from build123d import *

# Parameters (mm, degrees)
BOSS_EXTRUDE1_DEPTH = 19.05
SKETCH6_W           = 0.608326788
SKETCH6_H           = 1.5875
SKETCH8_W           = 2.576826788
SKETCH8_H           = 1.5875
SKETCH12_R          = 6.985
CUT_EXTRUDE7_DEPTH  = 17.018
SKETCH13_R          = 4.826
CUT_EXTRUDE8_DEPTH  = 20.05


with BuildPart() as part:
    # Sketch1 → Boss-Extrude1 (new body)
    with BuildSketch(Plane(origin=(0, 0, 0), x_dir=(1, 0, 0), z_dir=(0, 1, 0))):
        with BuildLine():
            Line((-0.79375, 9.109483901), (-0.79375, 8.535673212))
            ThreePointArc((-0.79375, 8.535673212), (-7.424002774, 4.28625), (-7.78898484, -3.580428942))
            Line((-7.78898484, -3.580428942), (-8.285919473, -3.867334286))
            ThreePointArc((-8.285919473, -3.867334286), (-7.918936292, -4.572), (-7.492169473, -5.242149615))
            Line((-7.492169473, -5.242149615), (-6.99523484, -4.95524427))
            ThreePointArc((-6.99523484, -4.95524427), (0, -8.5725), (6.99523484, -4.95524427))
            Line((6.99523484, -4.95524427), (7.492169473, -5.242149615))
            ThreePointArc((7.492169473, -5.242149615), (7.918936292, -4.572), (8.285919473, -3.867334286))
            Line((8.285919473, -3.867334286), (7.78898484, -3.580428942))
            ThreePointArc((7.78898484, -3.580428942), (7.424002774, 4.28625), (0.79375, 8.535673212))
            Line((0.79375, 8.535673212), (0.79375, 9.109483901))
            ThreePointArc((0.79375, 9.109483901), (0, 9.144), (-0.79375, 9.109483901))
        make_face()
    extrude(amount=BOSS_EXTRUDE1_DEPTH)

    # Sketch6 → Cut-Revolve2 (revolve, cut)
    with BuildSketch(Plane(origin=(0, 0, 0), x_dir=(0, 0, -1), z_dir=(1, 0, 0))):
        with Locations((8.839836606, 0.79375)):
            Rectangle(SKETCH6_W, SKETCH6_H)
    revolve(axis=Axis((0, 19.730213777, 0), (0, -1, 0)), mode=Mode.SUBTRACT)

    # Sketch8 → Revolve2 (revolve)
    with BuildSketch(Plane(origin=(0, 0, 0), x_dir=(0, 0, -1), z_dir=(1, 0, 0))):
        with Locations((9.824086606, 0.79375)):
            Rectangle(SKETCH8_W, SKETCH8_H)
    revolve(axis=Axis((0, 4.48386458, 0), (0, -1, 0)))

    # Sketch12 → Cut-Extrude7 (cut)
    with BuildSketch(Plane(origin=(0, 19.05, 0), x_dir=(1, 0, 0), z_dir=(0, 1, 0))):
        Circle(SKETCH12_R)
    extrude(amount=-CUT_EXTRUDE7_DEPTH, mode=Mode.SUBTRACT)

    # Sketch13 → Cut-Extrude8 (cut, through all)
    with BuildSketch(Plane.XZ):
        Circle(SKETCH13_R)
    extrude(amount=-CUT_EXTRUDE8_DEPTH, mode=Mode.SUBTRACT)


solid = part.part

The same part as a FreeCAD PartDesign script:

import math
import FreeCAD as App
import Part
import Sketcher
Q = App.Units.Quantity


def add_polygon(sketch, points):
    """Adds a closed chain of lines whose ends are joined by coincident constraints."""
    first, n = sketch.GeometryCount, len(points)
    for a, b in zip(points, points[1:] + points[:1]):
        sketch.addGeometry(Part.LineSegment(App.Vector(*a, 0), App.Vector(*b, 0)), False)
    for i in range(n):
        sketch.addConstraint(Sketcher.Constraint("Coincident", first + i, 2, first + (i + 1) % n, 1))

doc = App.newDocument("Part")
body = doc.addObject("PartDesign::Body", "Body")

# Sketch on XZ plane
sketch1 = body.newObject("Sketcher::SketchObject", "Sketch")
sketch1.AttachmentSupport = (doc.getObject("XZ_Plane"), [""])
sketch1.MapMode = "FlatFace"
sketch1.addGeometry(Part.LineSegment(App.Vector(-0.79375, -9.109484, 0), App.Vector(-0.79375, -8.535673, 0)), False)
sketch1.addGeometry(Part.ArcOfCircle(Part.Circle(App.Vector(0, 0, 0), App.Vector(0, 0, 1), 8.5725), math.radians(155.312775), math.radians(264.687225)), False)
sketch1.addGeometry(Part.LineSegment(App.Vector(-7.788985, 3.580429, 0), App.Vector(-8.285919, 3.867334, 0)), False)
sketch1.addGeometry(Part.ArcOfCircle(Part.Circle(App.Vector(0, 0, 0), App.Vector(0, 0, 1), 9.144), math.radians(145.020141), math.radians(154.979859)), False)
sketch1.addGeometry(Part.LineSegment(App.Vector(-7.492169, 5.24215, 0), App.Vector(-6.995235, 4.955244, 0)), False)
sketch1.addGeometry(Part.ArcOfCircle(Part.Circle(App.Vector(0, 0, 0), App.Vector(0, 0, 1), 8.5725), math.radians(35.312775), math.radians(144.687225)), False)
sketch1.addGeometry(Part.LineSegment(App.Vector(6.995235, 4.955244, 0), App.Vector(7.492169, 5.24215, 0)), False)
sketch1.addGeometry(Part.ArcOfCircle(Part.Circle(App.Vector(0, 0, 0), App.Vector(0, 0, 1), 9.144), math.radians(25.020141), math.radians(34.979859)), False)
sketch1.addGeometry(Part.LineSegment(App.Vector(8.285919, 3.867334, 0), App.Vector(7.788985, 3.580429, 0)), False)
sketch1.addGeometry(Part.ArcOfCircle(Part.Circle(App.Vector(0, 0, 0), App.Vector(0, 0, 1), 8.5725), math.radians(-84.687225), math.radians(24.687225)), False)
sketch1.addGeometry(Part.LineSegment(App.Vector(0.79375, -8.535673, 0), App.Vector(0.79375, -9.109484, 0)), False)
sketch1.addGeometry(Part.ArcOfCircle(Part.Circle(App.Vector(0, 0, 0), App.Vector(0, 0, 1), 9.144), math.radians(-94.979859), math.radians(-85.020141)), False)
sketch1.addConstraint(Sketcher.Constraint("Coincident", 0, 2, 1, 2))
sketch1.addConstraint(Sketcher.Constraint("Coincident", 1, 1, 2, 1))
sketch1.addConstraint(Sketcher.Constraint("Coincident", 2, 2, 3, 2))
sketch1.addConstraint(Sketcher.Constraint("Coincident", 3, 1, 4, 1))
sketch1.addConstraint(Sketcher.Constraint("Coincident", 4, 2, 5, 2))
sketch1.addConstraint(Sketcher.Constraint("Coincident", 5, 1, 6, 1))
sketch1.addConstraint(Sketcher.Constraint("Coincident", 6, 2, 7, 2))
sketch1.addConstraint(Sketcher.Constraint("Coincident", 7, 1, 8, 1))
sketch1.addConstraint(Sketcher.Constraint("Coincident", 8, 2, 9, 2))
sketch1.addConstraint(Sketcher.Constraint("Coincident", 9, 1, 10, 1))
sketch1.addConstraint(Sketcher.Constraint("Coincident", 10, 2, 11, 2))
sketch1.addConstraint(Sketcher.Constraint("Coincident", 11, 1, 0, 1))
sketch1.addConstraint(Sketcher.Constraint("Vertical", 0))
sketch1.addConstraint(Sketcher.Constraint("Vertical", 10))
sketch1.addConstraint(Sketcher.Constraint("Coincident", 1, 3, -1, 1))
sketch1.addConstraint(Sketcher.Constraint("Coincident", 3, 3, -1, 1))
sketch1.addConstraint(Sketcher.Constraint("Coincident", 5, 3, -1, 1))
sketch1.addConstraint(Sketcher.Constraint("Coincident", 7, 3, -1, 1))
sketch1.addConstraint(Sketcher.Constraint("Coincident", 9, 3, -1, 1))
sketch1.addConstraint(Sketcher.Constraint("Coincident", 11, 3, -1, 1))
sketch1.addConstraint(Sketcher.Constraint("Equal", 1, 5))
sketch1.addConstraint(Sketcher.Constraint("Equal", 3, 7))
sketch1.addConstraint(Sketcher.Constraint("Equal", 5, 9))
sketch1.addConstraint(Sketcher.Constraint("Equal", 7, 11))
sketch1.addConstraint(Sketcher.Constraint("Parallel", 2, 4))
sketch1.addConstraint(Sketcher.Constraint("Parallel", 6, 8))
sketch1.addConstraint(Sketcher.Constraint("Horizontal", 4, 2, 5, 1))
sketch1.addConstraint(Sketcher.Constraint("Horizontal", 3, 1, 6, 2))
sketch1.addConstraint(Sketcher.Constraint("Horizontal", 2, 2, 7, 1))
sketch1.addConstraint(Sketcher.Constraint("Horizontal", 0, 2, 9, 1))
sketch1.addConstraint(Sketcher.Constraint("Equal", 2, 4))
sketch1.addConstraint(Sketcher.Constraint("Radius", 3, Q("0.36 in")))
sketch1.addConstraint(Sketcher.Constraint("Angle", 2, Q("150 deg")))
sketch1.addConstraint(Sketcher.Constraint("Radius", 1, Q("0.3375 in")))
sketch1.addConstraint(Sketcher.Constraint("DistanceX", 0, 2, -1, 1, Q("0.03125 in")))
sketch1.addConstraint(Sketcher.Constraint("DistanceX", 2, 2, 3, 1, Q("0.03125 in")))
pad1 = body.newObject("PartDesign::Pad", "Pad")
pad1.Profile = sketch1
pad1.Length = Q("0.75 in")
pad1.Reversed = True

# Sketch on YZ plane
sketch2 = body.newObject("Sketcher::SketchObject", "Sketch001")
sketch2.AttachmentSupport = (doc.getObject("YZ_Plane"), [""])
sketch2.MapMode = "FlatFace"
add_polygon(sketch2, [(1.5875, -8.535673), (0, -8.535673), (0, -9.144), (1.5875, -9.144)])  # lines 0-3
sketch2.addConstraint(Sketcher.Constraint("Horizontal", 0))
sketch2.addConstraint(Sketcher.Constraint("Vertical", 1))
sketch2.addConstraint(Sketcher.Constraint("Horizontal", 2))
sketch2.addConstraint(Sketcher.Constraint("Vertical", 3))
sketch2.addConstraint(Sketcher.Constraint("PointOnObject", 0, 2, -2))
sketch2.addConstraint(Sketcher.Constraint("DistanceX", 0, 2, 0, 1, Q("0.0625 in")))
sketch2.addConstraint(Sketcher.Constraint("DistanceY", 1, 2, -1, 1, Q("0.36 in")))
sketch2.addConstraint(Sketcher.Constraint("DistanceY", 1, 2, 1, 1, Q("0.608327 mm")))
groove = body.newObject("PartDesign::Groove", "Groove")
groove.Profile = sketch2
groove.ReferenceAxis = (sketch2, ["H_Axis"])
groove.Angle = 360

# Sketch on YZ plane
sketch3 = body.newObject("Sketcher::SketchObject", "Sketch002")
sketch3.AttachmentSupport = (doc.getObject("YZ_Plane"), [""])
sketch3.MapMode = "FlatFace"
add_polygon(sketch3, [(1.5875, -8.535673), (0, -8.535673), (0, -11.1125), (1.5875, -11.1125)])  # lines 0-3
sketch3.addConstraint(Sketcher.Constraint("Horizontal", 0))
sketch3.addConstraint(Sketcher.Constraint("Vertical", 1))
sketch3.addConstraint(Sketcher.Constraint("Horizontal", 2))
sketch3.addConstraint(Sketcher.Constraint("Vertical", 3))
sketch3.addConstraint(Sketcher.Constraint("PointOnObject", 0, 2, -2))
sketch3.addConstraint(Sketcher.Constraint("DistanceX", 0, 2, 0, 1, Q("0.0625 in")))
sketch3.addConstraint(Sketcher.Constraint("DistanceY", 1, 2, -1, 1, Q("0.4375 in")))
sketch3.addConstraint(Sketcher.Constraint("DistanceY", 1, 2, 1, 1, Q("2.576827 mm")))
revolution = body.newObject("PartDesign::Revolution", "Revolution")
revolution.Profile = sketch3
revolution.ReferenceAxis = (sketch3, ["H_Axis"])
revolution.Angle = 360

# Sketch on XZ plane
sketch4 = body.newObject("Sketcher::SketchObject", "Sketch003")
sketch4.AttachmentSupport = (doc.getObject("XZ_Plane"), [""])
sketch4.MapMode = "FlatFace"
sketch4.AttachmentOffset = App.Placement(App.Vector(0, 0, -0.75 * 25.4), App.Rotation())
sketch4.addGeometry(Part.Circle(App.Vector(0, 0, 0), App.Vector(0, 0, 1), 6.985), False)
sketch4.addConstraint(Sketcher.Constraint("Coincident", 0, 3, -1, 1))
sketch4.addConstraint(Sketcher.Constraint("Diameter", 0, Q("0.55 in")))
pocket1 = body.newObject("PartDesign::Pocket", "Pocket")
pocket1.Profile = sketch4
pocket1.Length = Q("0.67 in")
pocket1.Reversed = True

# Sketch on XZ plane
sketch5 = body.newObject("Sketcher::SketchObject", "Sketch004")
sketch5.AttachmentSupport = (doc.getObject("XZ_Plane"), [""])
sketch5.MapMode = "FlatFace"
sketch5.addGeometry(Part.Circle(App.Vector(0, 0, 0), App.Vector(0, 0, 1), 4.826), False)
sketch5.addConstraint(Sketcher.Constraint("Coincident", 0, 3, -1, 1))
sketch5.addConstraint(Sketcher.Constraint("Diameter", 0, Q("0.38 in")))
pocket2 = body.newObject("PartDesign::Pocket", "Pocket001")
pocket2.Profile = sketch5
pocket2.Type = "ThroughAll"

doc.recompute()
